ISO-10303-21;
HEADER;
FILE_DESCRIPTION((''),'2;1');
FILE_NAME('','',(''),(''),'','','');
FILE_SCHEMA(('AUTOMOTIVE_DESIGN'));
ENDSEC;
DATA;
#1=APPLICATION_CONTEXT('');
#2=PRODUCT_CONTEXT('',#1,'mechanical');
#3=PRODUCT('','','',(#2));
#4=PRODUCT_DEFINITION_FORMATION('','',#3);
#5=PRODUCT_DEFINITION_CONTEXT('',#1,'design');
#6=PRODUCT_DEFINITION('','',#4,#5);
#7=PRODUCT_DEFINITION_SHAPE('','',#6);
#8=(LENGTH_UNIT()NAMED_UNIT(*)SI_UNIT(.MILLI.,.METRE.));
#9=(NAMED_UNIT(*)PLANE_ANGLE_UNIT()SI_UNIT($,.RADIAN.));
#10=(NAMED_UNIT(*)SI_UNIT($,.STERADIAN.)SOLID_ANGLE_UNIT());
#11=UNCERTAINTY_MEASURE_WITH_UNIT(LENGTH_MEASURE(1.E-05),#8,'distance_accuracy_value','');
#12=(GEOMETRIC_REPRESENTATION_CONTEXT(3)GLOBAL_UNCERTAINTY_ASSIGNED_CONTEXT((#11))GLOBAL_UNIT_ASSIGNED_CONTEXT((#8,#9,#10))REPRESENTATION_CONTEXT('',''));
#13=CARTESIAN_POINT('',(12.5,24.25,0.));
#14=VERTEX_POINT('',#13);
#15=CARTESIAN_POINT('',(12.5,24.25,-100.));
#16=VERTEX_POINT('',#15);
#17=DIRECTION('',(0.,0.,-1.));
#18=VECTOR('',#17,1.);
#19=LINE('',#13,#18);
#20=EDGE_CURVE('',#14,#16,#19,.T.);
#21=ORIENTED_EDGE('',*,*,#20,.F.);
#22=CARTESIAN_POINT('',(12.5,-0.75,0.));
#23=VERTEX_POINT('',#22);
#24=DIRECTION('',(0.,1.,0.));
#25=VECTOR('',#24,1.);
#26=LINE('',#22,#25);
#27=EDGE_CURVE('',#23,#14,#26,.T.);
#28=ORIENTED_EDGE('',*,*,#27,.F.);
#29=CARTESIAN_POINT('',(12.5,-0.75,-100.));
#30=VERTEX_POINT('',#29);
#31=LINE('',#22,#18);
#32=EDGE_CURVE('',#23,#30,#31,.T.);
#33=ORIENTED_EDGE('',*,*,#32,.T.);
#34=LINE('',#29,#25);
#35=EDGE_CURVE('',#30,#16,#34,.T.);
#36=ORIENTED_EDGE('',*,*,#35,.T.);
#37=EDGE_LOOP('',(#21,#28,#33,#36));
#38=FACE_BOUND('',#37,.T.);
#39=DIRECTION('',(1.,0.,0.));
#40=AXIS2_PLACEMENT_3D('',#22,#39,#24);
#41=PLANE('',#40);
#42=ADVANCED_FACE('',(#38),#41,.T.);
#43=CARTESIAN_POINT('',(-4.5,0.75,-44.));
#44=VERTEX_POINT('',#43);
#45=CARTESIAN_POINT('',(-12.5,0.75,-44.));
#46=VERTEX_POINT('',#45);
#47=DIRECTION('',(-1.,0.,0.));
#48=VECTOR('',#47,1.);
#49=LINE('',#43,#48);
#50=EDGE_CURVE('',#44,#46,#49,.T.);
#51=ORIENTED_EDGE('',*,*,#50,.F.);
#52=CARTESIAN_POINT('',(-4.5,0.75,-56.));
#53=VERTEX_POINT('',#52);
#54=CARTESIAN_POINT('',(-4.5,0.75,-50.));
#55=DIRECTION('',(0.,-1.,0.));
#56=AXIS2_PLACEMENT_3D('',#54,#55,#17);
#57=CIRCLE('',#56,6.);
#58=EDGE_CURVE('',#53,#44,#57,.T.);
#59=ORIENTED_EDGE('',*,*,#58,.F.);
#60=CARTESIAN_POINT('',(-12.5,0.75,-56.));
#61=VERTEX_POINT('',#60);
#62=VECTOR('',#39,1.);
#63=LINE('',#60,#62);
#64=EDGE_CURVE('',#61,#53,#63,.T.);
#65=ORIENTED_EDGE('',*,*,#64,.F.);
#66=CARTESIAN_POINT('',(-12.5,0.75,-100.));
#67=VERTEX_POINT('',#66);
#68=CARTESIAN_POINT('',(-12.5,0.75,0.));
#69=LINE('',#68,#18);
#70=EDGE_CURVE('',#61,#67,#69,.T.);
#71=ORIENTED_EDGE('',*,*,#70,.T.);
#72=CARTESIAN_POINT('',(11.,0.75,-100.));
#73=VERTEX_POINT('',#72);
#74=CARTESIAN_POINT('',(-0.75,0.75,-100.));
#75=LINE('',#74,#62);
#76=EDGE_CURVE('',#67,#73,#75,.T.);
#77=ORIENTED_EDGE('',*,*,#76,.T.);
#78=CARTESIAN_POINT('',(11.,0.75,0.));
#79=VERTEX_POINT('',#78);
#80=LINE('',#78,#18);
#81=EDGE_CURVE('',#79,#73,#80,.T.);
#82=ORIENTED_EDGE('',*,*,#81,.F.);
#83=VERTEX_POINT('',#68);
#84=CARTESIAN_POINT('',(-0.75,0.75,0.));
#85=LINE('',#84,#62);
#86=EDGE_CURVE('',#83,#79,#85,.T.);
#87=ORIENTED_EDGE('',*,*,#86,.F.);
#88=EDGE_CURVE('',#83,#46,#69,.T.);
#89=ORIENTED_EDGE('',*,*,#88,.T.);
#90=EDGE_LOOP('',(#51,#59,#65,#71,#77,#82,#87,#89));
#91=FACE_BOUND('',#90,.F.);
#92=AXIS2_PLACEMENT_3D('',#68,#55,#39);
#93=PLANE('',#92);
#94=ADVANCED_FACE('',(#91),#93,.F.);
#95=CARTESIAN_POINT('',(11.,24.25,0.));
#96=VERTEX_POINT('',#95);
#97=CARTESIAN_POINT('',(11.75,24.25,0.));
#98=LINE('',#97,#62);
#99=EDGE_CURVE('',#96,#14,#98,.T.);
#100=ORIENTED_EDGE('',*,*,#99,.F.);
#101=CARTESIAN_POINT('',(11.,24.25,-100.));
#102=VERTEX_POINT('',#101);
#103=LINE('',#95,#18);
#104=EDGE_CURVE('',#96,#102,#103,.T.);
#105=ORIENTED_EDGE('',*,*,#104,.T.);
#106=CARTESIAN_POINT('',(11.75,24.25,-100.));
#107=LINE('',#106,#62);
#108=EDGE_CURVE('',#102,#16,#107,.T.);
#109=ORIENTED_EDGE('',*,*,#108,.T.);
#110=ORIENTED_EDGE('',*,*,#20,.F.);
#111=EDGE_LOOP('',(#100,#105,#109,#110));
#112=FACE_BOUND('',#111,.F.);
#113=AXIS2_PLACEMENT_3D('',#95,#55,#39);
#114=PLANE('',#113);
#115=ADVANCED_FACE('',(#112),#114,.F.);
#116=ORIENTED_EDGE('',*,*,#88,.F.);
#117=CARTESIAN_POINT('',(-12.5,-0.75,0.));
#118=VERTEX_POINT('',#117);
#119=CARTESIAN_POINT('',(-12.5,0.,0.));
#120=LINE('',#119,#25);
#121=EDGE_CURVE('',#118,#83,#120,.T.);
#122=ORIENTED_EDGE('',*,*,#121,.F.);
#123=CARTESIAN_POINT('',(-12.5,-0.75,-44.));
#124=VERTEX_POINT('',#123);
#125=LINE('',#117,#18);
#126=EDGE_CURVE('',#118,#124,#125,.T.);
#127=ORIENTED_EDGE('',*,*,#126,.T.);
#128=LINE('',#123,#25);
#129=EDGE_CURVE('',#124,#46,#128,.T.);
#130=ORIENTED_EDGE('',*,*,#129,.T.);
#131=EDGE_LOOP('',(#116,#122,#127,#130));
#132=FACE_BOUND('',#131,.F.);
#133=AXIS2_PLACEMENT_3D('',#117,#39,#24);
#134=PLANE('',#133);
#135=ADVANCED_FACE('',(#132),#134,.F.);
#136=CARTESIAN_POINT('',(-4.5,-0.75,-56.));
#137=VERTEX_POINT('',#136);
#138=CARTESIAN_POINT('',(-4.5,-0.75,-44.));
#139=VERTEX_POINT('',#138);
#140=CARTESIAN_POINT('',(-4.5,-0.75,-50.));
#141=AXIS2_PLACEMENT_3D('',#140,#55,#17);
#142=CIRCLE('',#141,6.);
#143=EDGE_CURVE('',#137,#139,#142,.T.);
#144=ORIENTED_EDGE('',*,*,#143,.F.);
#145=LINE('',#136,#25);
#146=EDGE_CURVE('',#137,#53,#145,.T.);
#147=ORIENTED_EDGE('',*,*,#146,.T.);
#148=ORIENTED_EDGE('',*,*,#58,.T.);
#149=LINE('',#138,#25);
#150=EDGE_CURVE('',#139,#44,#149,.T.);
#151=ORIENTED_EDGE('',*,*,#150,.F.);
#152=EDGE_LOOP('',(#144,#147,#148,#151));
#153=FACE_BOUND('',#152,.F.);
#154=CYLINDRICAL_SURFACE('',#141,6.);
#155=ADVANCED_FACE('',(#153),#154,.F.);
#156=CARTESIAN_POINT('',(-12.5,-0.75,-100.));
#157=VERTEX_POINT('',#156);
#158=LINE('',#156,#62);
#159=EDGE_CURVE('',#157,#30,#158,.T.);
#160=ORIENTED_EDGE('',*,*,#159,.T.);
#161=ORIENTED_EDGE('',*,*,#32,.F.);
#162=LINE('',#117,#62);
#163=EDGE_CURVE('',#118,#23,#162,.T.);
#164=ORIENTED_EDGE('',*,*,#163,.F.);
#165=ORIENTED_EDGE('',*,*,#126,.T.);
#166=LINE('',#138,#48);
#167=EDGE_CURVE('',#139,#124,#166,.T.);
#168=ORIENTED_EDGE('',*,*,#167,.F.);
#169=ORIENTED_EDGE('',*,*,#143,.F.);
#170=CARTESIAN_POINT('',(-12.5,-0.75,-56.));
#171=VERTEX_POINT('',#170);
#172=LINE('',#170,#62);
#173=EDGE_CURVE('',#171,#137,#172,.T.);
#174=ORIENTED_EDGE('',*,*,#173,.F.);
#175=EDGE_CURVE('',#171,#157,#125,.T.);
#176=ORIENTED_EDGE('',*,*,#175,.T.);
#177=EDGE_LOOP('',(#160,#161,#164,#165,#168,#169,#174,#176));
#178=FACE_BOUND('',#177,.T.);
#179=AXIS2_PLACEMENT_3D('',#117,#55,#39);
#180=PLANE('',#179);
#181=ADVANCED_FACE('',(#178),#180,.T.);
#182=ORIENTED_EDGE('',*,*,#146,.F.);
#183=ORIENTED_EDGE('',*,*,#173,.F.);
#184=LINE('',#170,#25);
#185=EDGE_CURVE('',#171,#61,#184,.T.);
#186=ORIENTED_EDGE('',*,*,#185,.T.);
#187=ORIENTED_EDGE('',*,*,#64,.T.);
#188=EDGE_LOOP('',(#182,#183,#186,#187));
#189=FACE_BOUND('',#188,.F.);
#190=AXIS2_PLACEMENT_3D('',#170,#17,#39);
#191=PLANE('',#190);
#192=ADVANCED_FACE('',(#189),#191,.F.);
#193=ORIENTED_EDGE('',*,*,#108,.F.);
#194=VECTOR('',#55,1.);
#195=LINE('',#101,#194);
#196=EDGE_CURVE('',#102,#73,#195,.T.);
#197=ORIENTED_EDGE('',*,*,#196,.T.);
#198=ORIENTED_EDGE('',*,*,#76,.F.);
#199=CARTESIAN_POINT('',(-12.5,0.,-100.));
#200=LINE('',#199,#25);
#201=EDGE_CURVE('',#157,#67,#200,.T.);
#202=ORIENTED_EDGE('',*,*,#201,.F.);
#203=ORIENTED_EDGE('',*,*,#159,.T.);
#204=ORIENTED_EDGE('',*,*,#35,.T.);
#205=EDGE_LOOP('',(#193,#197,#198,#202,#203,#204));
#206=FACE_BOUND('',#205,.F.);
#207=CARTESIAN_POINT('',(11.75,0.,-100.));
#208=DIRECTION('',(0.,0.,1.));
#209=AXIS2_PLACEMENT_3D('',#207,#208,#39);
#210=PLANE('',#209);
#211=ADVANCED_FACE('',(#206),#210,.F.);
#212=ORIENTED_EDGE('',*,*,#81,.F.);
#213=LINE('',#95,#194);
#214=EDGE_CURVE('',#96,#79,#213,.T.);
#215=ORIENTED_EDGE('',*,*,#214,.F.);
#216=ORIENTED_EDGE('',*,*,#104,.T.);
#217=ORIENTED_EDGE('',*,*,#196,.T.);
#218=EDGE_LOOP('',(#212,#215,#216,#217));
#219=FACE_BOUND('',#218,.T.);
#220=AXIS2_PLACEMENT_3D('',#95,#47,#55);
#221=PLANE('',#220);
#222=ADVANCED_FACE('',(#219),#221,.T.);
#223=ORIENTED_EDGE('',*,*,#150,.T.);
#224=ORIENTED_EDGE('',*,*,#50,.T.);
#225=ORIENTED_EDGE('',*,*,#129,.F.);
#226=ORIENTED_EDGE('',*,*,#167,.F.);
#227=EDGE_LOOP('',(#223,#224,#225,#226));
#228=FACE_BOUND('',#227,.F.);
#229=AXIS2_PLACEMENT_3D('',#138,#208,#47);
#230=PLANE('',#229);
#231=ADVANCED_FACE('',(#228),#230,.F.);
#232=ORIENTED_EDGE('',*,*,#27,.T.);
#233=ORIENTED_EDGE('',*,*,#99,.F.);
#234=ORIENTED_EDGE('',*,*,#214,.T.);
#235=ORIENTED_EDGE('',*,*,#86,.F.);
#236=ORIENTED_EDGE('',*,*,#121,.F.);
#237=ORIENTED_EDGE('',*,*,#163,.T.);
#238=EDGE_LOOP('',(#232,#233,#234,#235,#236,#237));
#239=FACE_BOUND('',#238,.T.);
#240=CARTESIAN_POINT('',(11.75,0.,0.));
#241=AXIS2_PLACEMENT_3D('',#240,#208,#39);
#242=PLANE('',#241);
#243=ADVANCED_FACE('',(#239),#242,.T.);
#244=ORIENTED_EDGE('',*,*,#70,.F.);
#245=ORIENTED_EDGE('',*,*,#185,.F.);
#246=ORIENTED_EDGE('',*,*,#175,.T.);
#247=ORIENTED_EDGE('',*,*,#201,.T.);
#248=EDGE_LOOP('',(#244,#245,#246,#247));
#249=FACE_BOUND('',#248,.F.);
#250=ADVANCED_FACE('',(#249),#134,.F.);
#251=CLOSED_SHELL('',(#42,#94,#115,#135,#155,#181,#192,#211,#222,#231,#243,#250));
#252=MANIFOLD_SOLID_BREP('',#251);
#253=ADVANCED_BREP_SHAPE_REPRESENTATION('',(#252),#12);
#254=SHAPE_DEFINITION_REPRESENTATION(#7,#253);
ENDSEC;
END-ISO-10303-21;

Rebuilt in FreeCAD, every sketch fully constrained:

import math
import FreeCAD as App
import Part
import Sketcher
from FreeCAD import Vector


def add_polygon(sketch, points):
    """Adds a closed chain of lines whose ends are joined by coincident constraints."""
    first, n = sketch.GeometryCount, len(points)
    for a, b in zip(points, points[1:] + points[:1]):
        sketch.addGeometry(Part.LineSegment(App.Vector(*a, 0), App.Vector(*b, 0)), False)
    for i in range(n):
        sketch.addConstraint(Sketcher.Constraint("Coincident", first + i, 2, first + (i + 1) % n, 1))

doc = App.newDocument("Part")
body = doc.addObject("PartDesign::Body", "Body")

# Sketch on XY plane
sketch1 = doc.addObject("Sketcher::SketchObject", "Sketch")
body.addObject(sketch1)
sketch1.AttachmentSupport = (doc.XY_Plane, [""])
sketch1.MapMode = "FlatFace"
add_polygon(sketch1, [(12.5, -0.8), (12.5, 24.2), (11, 24.2), (11, 0.8), (-12.5, 0.8), (-12.5, -0.8)])  # lines 0-5
sketch1.addConstraint([
    Sketcher.Constraint("Vertical", 0),
    Sketcher.Constraint("Horizontal", 1),
    Sketcher.Constraint("Vertical", 2),
    Sketcher.Constraint("Horizontal", 3),
    Sketcher.Constraint("Vertical", 4),
    Sketcher.Constraint("Horizontal", 5),
    Sketcher.Constraint("Symmetric", 3, 2, 5, 2, -1, 1),
    Sketcher.Constraint("Equal", 5, 0),
    Sketcher.Constraint("Equal", 3, 2),
    Sketcher.Constraint("DistanceX", 5, 1, 5, 2, 25.0),
    Sketcher.Constraint("DistanceX", 1, 2, 1, 1, 1.5),
])
pad1 = doc.addObject("PartDesign::Pad", "Pad")
body.addObject(pad1)
pad1.Profile = sketch1
pad1.Length = 100
pad1.Reversed = True

# Sketch on XZ plane
sketch2 = doc.addObject("Sketcher::SketchObject", "Sketch001")
body.addObject(sketch2)
sketch2.AttachmentSupport = (doc.XZ_Plane, [""])
sketch2.MapMode = "FlatFace"
sketch2.AttachmentOffset = App.Placement(Vector(0, 0, 0.75), App.Rotation())
sketch2.addGeometry([
    Part.LineSegment(Vector(-12, -56, 0), Vector(-4, -56, 0)),
    Part.ArcOfCircle(Part.Circle(Vector(-4, -50, 0), Vector(0, 0, 1), 6), math.radians(-90), math.radians(90)),
    Part.LineSegment(Vector(-4, -44, 0), Vector(-12, -44, 0)),
    Part.LineSegment(Vector(-12, -44, 0), Vector(-12, -56, 0)),
], False)
sketch2.addConstraint([
    Sketcher.Constraint("Tangent", 0, 2, 1, 1),
    Sketcher.Constraint("Tangent", 1, 2, 2, 1),
    Sketcher.Constraint("Coincident", 2, 2, 3, 1),
    Sketcher.Constraint("Coincident", 3, 2, 0, 1),
    Sketcher.Constraint("Horizontal", 0),
    Sketcher.Constraint("Horizontal", 2),
    Sketcher.Constraint("Vertical", 3),
    Sketcher.Constraint("Radius", 1, 6.0),
    Sketcher.Constraint("DistanceX", 0, 1, 0, 2, 8.0),
    Sketcher.Constraint("DistanceY", 1, 3, -1, 1, 50.0),
    Sketcher.Constraint("DistanceX", 1, 3, -1, 1, 4.5),
])
pocket1 = doc.addObject("PartDesign::Pocket", "Pocket")
body.addObject(pocket1)
pocket1.Profile = sketch2
pocket1.Length = 1.5

doc.recompute()
